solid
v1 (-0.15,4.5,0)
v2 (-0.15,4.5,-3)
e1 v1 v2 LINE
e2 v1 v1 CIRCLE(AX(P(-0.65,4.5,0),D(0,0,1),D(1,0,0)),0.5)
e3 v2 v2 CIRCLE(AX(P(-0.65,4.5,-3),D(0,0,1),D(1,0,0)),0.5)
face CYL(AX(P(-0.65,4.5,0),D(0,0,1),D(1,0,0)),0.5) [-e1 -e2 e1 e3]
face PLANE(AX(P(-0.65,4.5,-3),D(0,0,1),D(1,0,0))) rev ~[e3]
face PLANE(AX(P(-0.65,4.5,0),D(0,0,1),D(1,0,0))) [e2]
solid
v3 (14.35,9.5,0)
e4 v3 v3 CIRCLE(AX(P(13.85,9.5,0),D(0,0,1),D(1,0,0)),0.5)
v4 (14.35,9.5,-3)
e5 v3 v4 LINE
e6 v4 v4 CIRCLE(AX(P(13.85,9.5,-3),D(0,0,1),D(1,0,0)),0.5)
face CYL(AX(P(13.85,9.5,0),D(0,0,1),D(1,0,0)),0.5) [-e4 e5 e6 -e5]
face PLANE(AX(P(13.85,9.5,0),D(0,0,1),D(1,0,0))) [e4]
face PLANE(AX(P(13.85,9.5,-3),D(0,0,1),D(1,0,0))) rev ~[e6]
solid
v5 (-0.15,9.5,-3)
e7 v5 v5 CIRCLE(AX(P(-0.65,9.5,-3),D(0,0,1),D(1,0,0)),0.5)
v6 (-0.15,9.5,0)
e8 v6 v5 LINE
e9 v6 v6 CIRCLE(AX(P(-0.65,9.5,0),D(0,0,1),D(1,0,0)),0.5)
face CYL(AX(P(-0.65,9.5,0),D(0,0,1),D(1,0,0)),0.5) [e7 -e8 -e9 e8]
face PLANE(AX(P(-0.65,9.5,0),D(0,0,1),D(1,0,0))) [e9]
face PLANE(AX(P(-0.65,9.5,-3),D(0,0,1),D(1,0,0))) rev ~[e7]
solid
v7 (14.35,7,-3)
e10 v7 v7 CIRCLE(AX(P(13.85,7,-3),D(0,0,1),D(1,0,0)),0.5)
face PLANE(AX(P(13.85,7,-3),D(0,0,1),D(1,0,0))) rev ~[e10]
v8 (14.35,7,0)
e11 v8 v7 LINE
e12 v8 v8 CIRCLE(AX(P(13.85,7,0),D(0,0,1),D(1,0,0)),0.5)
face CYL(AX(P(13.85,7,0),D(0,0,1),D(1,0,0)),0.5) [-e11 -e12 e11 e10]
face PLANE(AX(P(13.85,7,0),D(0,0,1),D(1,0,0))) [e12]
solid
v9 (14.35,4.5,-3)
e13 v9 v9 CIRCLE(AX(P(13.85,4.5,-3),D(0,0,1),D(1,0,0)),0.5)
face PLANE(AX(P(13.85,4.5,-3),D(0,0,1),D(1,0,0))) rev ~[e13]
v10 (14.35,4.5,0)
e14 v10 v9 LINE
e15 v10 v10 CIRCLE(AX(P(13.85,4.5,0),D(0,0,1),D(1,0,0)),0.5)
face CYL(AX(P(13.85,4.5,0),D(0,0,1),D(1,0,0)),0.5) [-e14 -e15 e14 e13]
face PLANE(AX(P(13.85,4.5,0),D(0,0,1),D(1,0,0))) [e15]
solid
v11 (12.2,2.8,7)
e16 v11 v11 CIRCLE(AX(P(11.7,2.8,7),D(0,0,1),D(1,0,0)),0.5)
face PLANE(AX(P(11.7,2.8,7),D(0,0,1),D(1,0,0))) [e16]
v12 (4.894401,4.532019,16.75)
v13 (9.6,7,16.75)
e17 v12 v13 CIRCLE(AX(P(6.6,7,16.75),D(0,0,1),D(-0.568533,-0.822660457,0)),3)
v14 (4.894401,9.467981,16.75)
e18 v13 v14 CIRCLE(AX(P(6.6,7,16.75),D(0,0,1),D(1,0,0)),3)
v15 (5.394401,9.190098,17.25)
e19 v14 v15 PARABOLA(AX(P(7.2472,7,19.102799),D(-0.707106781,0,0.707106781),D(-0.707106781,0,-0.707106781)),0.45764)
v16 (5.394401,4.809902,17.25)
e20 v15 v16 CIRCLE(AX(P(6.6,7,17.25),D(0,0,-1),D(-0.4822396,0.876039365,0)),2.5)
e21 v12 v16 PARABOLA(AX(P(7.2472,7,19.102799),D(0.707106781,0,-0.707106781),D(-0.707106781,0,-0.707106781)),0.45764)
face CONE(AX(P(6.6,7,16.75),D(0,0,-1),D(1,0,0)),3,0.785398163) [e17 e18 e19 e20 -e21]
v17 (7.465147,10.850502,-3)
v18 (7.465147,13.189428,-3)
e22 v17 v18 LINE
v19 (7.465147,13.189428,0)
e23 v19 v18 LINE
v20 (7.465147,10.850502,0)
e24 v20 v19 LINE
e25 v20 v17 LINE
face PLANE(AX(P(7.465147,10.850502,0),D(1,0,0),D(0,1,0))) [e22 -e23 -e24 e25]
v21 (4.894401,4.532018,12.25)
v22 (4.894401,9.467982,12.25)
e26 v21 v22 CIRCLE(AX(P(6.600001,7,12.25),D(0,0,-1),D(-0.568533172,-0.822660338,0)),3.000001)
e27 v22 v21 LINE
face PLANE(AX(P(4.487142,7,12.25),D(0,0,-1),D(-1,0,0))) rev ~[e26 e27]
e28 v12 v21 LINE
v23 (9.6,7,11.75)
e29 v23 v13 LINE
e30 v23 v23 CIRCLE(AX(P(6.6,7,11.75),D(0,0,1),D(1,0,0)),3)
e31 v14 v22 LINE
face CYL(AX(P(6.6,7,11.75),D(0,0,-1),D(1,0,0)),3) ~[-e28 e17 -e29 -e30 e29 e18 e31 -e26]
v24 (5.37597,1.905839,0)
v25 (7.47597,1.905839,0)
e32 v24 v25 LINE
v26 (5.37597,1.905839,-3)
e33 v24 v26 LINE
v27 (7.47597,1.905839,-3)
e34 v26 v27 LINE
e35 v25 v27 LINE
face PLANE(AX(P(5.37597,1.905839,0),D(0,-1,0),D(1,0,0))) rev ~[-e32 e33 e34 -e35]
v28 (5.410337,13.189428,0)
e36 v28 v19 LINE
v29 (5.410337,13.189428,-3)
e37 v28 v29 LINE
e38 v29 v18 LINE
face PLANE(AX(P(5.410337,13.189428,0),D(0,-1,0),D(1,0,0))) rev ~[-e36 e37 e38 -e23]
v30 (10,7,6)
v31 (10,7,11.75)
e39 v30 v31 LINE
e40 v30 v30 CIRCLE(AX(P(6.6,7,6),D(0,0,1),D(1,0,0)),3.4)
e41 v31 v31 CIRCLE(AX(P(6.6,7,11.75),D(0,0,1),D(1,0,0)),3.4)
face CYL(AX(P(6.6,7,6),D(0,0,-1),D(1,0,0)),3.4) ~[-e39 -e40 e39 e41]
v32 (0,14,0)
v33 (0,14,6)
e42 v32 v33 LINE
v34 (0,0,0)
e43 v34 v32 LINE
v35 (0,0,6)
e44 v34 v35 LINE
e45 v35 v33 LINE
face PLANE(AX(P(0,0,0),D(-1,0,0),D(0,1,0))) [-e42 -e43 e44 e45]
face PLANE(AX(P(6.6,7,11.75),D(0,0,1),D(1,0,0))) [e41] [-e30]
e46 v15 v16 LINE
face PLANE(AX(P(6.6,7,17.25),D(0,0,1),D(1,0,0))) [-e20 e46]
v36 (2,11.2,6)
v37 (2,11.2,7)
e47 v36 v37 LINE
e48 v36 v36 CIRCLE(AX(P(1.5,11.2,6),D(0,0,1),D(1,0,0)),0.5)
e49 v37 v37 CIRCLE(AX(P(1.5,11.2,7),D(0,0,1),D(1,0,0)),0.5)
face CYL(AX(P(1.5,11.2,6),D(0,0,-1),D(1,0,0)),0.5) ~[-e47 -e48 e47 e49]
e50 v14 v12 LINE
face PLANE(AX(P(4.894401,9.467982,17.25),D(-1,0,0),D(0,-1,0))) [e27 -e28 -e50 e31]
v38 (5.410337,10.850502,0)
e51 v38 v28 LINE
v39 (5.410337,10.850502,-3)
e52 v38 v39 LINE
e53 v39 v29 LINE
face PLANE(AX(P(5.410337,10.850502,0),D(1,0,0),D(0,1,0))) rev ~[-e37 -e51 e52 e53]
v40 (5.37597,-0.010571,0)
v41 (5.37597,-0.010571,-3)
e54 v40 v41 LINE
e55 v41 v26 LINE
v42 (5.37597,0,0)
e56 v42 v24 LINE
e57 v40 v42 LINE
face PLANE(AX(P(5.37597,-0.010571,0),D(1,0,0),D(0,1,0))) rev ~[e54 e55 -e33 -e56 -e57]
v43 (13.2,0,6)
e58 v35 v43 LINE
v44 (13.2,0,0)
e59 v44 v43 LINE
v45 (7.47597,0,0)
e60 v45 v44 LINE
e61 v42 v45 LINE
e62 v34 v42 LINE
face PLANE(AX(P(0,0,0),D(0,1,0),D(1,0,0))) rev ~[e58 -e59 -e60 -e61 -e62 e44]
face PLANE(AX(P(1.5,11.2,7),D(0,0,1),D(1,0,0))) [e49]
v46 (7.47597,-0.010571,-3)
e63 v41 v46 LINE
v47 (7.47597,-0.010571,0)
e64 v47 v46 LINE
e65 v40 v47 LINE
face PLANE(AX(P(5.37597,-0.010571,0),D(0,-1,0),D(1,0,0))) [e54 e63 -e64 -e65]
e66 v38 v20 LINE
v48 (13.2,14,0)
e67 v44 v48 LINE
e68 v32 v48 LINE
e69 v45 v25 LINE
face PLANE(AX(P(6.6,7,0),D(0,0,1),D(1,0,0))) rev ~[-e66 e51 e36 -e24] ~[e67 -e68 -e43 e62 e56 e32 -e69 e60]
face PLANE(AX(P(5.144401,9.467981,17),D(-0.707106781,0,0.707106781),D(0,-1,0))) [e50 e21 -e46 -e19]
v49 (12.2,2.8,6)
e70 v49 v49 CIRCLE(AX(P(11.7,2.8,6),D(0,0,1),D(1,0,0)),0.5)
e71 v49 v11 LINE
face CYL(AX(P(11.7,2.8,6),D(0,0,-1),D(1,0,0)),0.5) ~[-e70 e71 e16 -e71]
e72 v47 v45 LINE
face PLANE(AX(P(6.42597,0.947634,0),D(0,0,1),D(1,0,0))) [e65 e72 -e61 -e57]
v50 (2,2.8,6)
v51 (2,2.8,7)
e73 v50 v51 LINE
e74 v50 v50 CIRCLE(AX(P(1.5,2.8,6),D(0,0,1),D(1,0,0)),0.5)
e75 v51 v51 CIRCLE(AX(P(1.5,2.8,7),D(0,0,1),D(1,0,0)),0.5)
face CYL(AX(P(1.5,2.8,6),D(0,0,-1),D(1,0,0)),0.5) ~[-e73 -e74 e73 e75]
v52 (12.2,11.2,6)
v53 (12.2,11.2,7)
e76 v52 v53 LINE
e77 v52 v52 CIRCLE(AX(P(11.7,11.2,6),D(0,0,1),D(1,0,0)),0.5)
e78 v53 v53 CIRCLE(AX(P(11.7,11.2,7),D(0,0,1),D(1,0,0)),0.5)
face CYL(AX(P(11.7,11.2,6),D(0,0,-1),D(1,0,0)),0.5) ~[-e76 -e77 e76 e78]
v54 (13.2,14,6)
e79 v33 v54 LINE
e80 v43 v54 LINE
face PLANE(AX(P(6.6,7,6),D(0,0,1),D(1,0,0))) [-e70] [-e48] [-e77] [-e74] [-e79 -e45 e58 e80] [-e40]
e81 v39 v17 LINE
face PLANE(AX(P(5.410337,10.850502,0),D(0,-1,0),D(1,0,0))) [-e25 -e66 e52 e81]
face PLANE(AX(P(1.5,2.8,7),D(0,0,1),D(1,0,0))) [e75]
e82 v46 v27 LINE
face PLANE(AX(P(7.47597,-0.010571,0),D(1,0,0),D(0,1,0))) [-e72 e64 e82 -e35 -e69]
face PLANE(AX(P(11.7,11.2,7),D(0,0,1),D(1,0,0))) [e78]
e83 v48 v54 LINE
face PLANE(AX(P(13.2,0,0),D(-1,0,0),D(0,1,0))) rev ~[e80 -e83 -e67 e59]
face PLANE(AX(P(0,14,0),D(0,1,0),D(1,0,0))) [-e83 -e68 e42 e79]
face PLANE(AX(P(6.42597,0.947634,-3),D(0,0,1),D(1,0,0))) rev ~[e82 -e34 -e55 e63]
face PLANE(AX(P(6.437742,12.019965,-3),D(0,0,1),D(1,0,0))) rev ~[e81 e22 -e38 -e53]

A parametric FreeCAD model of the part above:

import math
import FreeCAD as App
import Part
import Sketcher
from FreeCAD import Vector
Q = App.Units.Quantity


def edges_at(feature, points):
    """Names of the edges that pass closest to the given points."""
    edges = feature.Shape.Edges
    near = lambda p: min(range(len(edges)), key=lambda i: edges[i].distToShape(Part.Vertex(*p))[0])
    return sorted({f"Edge{near(p) + 1}" for p in points})


def add_polygon(sketch, points):
    """Adds a closed chain of lines whose ends are joined by coincident constraints."""
    first, n = sketch.GeometryCount, len(points)
    for a, b in zip(points, points[1:] + points[:1]):
        sketch.addGeometry(Part.LineSegment(App.Vector(*a, 0), App.Vector(*b, 0)), False)
    for i in range(n):
        sketch.addConstraint(Sketcher.Constraint("Coincident", first + i, 2, first + (i + 1) % n, 1))

doc = App.newDocument("Part")
body = doc.addObject("PartDesign::Body", "Body")
body.AllowCompound = True

# Sketch on XY plane
sketch1 = doc.addObject("Sketcher::SketchObject", "Sketch")
body.addObject(sketch1)
sketch1.AttachmentSupport = (doc.XY_Plane, [""])
sketch1.MapMode = "FlatFace"
sketch1.addGeometry(Part.Circle(Vector(-0.7, 4.5, 0), Vector(0, 0, 1), 0.5), False)  # 0
sketch1.addGeometry(Part.Circle(Vector(13.8, 4.5, 0), Vector(0, 0, 1), 0.5), False)  # 1
sketch1.addGeometry(Part.Circle(Vector(13.8, 9.5, 0), Vector(0, 0, 1), 0.5), False)  # 2
sketch1.addGeometry(Part.Circle(Vector(-0.7, 9.5, 0), Vector(0, 0, 1), 0.5), False)  # 3
sketch1.addGeometry(Part.Circle(Vector(13.8, 7, 0), Vector(0, 0, 1), 0.5), False)  # 4
add_polygon(sketch1, [(5.4, 1.9), (5.4, 0), (7.5, 0), (7.5, 1.9)])  # lines 5-8
add_polygon(sketch1, [(5.4, 13.2), (5.4, 10.9), (7.5, 10.9), (7.5, 13.2)])  # lines 9-12
sketch1.addConstraint(Sketcher.Constraint("Vertical", 5))
sketch1.addConstraint(Sketcher.Constraint("Horizontal", 6))
sketch1.addConstraint(Sketcher.Constraint("Vertical", 7))
sketch1.addConstraint(Sketcher.Constraint("Horizontal", 8))
sketch1.addConstraint(Sketcher.Constraint("Vertical", 9))
sketch1.addConstraint(Sketcher.Constraint("Horizontal", 10))
sketch1.addConstraint(Sketcher.Constraint("Vertical", 11))
sketch1.addConstraint(Sketcher.Constraint("Horizontal", 12))
sketch1.addConstraint(Sketcher.Constraint("Equal", 0, 1))
sketch1.addConstraint(Sketcher.Constraint("Equal", 1, 2))
sketch1.addConstraint(Sketcher.Constraint("Equal", 2, 3))
sketch1.addConstraint(Sketcher.Constraint("Equal", 3, 4))
sketch1.addConstraint(Sketcher.Constraint("Horizontal", 0, 3, 1, 3))
sketch1.addConstraint(Sketcher.Constraint("Horizontal", 2, 3, 3, 3))
sketch1.addConstraint(Sketcher.Constraint("Vertical", 1, 3, 2, 3))
sketch1.addConstraint(Sketcher.Constraint("Vertical", 0, 3, 3, 3))
sketch1.addConstraint(Sketcher.Constraint("Vertical", 2, 3, 4, 3))
sketch1.addConstraint(Sketcher.Constraint("Diameter", 0, Q("1 mm")))
sketch1.addConstraint(Sketcher.Constraint("DistanceX", 6, 1, 6, 2, Q("2.1 mm")))
sketch1.addConstraint(Sketcher.Constraint("DistanceY", -1, 1, 4, 3, Q("7 mm")))
sketch1.addConstraint(Sketcher.Constraint("DistanceY", 1, 3, 2, 3, Q("5 mm")))
sketch1.addConstraint(Sketcher.Constraint("DistanceY", -1, 1, 0, 3, Q("4.5 mm")))
sketch1.addConstraint(Sketcher.Constraint("DistanceX", 0, 3, 1, 3, Q("14.5 mm")))
sketch1.addConstraint(Sketcher.Constraint("DistanceX", 0, 3, -1, 1, Q("0.65 mm")))
sketch1.addConstraint(Sketcher.Constraint("DistanceX", 10, 1, 10, 2, Q("2.05481 mm")))
sketch1.addConstraint(Sketcher.Constraint("DistanceY", 5, 2, 5, 1, Q("1.916411 mm")))
sketch1.addConstraint(Sketcher.Constraint("DistanceY", 9, 2, 9, 1, Q("2.338926 mm")))
sketch1.addConstraint(Sketcher.Constraint("DistanceX", -1, 1, 5, 2, Q("5.37597 mm")))
sketch1.addConstraint(Sketcher.Constraint("DistanceY", 5, 2, -1, 1, Q("0.010571 mm")))
sketch1.addConstraint(Sketcher.Constraint("DistanceX", -1, 1, 9, 2, Q("5.410337 mm")))
sketch1.addConstraint(Sketcher.Constraint("DistanceY", -1, 1, 9, 2, Q("10.850502 mm")))
pad1 = doc.addObject("PartDesign::Pad", "Pad")
body.addObject(pad1)
pad1.Profile = sketch1
pad1.Length = 3
pad1.Reversed = True
body2 = doc.addObject("PartDesign::Body", "Body001")
body2.AllowCompound = True

# Sketch on XY plane
sketch2 = doc.addObject("Sketcher::SketchObject", "Sketch001")
body2.addObject(sketch2)
sketch2.AttachmentSupport = (doc.getObject("XY_Plane001"), [""])
sketch2.MapMode = "FlatFace"
add_polygon(sketch2, [(0, 14), (0, 0), (13, 0), (13, 14)])  # lines 0-3
sketch2.addConstraint(Sketcher.Constraint("Vertical", 0))
sketch2.addConstraint(Sketcher.Constraint("Horizontal", 1))
sketch2.addConstraint(Sketcher.Constraint("Vertical", 2))
sketch2.addConstraint(Sketcher.Constraint("Horizontal", 3))
sketch2.addConstraint(Sketcher.Constraint("Coincident", 0, 2, -1, 1))
sketch2.addConstraint(Sketcher.Constraint("DistanceY", 0, 2, 0, 1, Q("14 mm")))
sketch2.addConstraint(Sketcher.Constraint("DistanceX", 1, 1, 1, 2, Q("13.2 mm")))
pad2 = doc.addObject("PartDesign::Pad", "Pad001")
body2.addObject(pad2)
pad2.Profile = sketch2
pad2.Length = 6

# Sketch on XY plane
sketch3 = doc.addObject("Sketcher::SketchObject", "Sketch002")
body2.addObject(sketch3)
sketch3.AttachmentSupport = (doc.getObject("XY_Plane001"), [""])
sketch3.MapMode = "FlatFace"
sketch3.AttachmentOffset = App.Placement(Vector(0, 0, 6), App.Rotation())
sketch3.addGeometry(Part.Circle(Vector(6.6, 7, 0), Vector(0, 0, 1), 3.4), False)
sketch3.addConstraint(Sketcher.Constraint("Diameter", 0, Q("6.8 mm")))
sketch3.addConstraint(Sketcher.Constraint("DistanceY", -1, 1, 0, 3, Q("7 mm")))
sketch3.addConstraint(Sketcher.Constraint("DistanceX", -1, 1, 0, 3, Q("6.6 mm")))
pad3 = doc.addObject("PartDesign::Pad", "Pad002")
body2.addObject(pad3)
pad3.Profile = sketch3
pad3.Length = 5.75

# Sketch on XY plane
sketch4 = doc.addObject("Sketcher::SketchObject", "Sketch003")
body2.addObject(sketch4)
sketch4.AttachmentSupport = (doc.getObject("XY_Plane001"), [""])
sketch4.MapMode = "FlatFace"
sketch4.AttachmentOffset = App.Placement(Vector(0, 0, 11.75), App.Rotation())
sketch4.addGeometry(Part.Circle(Vector(6.6, 7, 0), Vector(0, 0, 1), 3), False)
sketch4.addConstraint(Sketcher.Constraint("Diameter", 0, Q("6 mm")))
sketch4.addConstraint(Sketcher.Constraint("DistanceY", -1, 1, 0, 3, Q("7 mm")))
sketch4.addConstraint(Sketcher.Constraint("DistanceX", -1, 1, 0, 3, Q("6.6 mm")))
pad4 = doc.addObject("PartDesign::Pad", "Pad003")
body2.addObject(pad4)
pad4.Profile = sketch4
pad4.Length = 5.5

# Sketch on XY plane
sketch5 = doc.addObject("Sketcher::SketchObject", "Sketch004")
body2.addObject(sketch5)
sketch5.AttachmentSupport = (doc.getObject("XY_Plane001"), [""])
sketch5.MapMode = "FlatFace"
sketch5.AttachmentOffset = App.Placement(Vector(0, 0, 17.25), App.Rotation())
sketch5.addGeometry(Part.LineSegment(Vector(4.9, 4.5, 0), Vector(4.9, 9.5, 0)), False)
sketch5.addGeometry(Part.ArcOfCircle(Part.Circle(Vector(6.6, 7, 0), Vector(0, 0, 1), 3), math.radians(125), math.radians(235)), False)
sketch5.addConstraint(Sketcher.Constraint("Coincident", 0, 1, 1, 2))
sketch5.addConstraint(Sketcher.Constraint("Coincident", 1, 1, 0, 2))
sketch5.addConstraint(Sketcher.Constraint("Vertical", 0))
sketch5.addConstraint(Sketcher.Constraint("Radius", 1, Q("3.000001 mm")))
sketch5.addConstraint(Sketcher.Constraint("DistanceY", -1, 1, 1, 3, Q("7 mm")))
sketch5.addConstraint(Sketcher.Constraint("DistanceX", -1, 1, 1, 3, Q("6.600001 mm")))
sketch5.addConstraint(Sketcher.Constraint("DistanceX", -1, 1, 0, 1, Q("4.894401 mm")))
pocket1 = doc.addObject("PartDesign::Pocket", "Pocket")
body2.addObject(pocket1)
pocket1.Profile = sketch5
pocket1.Length = 5
doc.recompute()

chamfer = doc.addObject("PartDesign::Chamfer", "Chamfer")
body2.addObject(chamfer)
chamfer.Base = (pocket1, edges_at(pocket1, [(7.993, 9.657, 17.25), (7.993, 4.343, 17.25), (4.894, 7, 17.25)]))
chamfer.Size = 0.5

# Sketch on XY plane
sketch6 = doc.addObject("Sketcher::SketchObject", "Sketch005")
body2.addObject(sketch6)
sketch6.AttachmentSupport = (doc.getObject("XY_Plane001"), [""])
sketch6.MapMode = "FlatFace"
sketch6.AttachmentOffset = App.Placement(Vector(0, 0, 6), App.Rotation())
sketch6.addGeometry(Part.Circle(Vector(1.5, 11.2, 0), Vector(0, 0, 1), 0.5), False)
sketch6.addGeometry(Part.Circle(Vector(1.5, 2.8, 0), Vector(0, 0, 1), 0.5), False)
sketch6.addGeometry(Part.Circle(Vector(11.7, 11.2, 0), Vector(0, 0, 1), 0.5), False)
sketch6.addGeometry(Part.Circle(Vector(11.7, 2.8, 0), Vector(0, 0, 1), 0.5), False)
sketch6.addConstraint(Sketcher.Constraint("Equal", 0, 1))
sketch6.addConstraint(Sketcher.Constraint("Equal", 1, 2))
sketch6.addConstraint(Sketcher.Constraint("Equal", 2, 3))
sketch6.addConstraint(Sketcher.Constraint("Horizontal", 0, 3, 2, 3))
sketch6.addConstraint(Sketcher.Constraint("Horizontal", 1, 3, 3, 3))
sketch6.addConstraint(Sketcher.Constraint("Vertical", 0, 3, 1, 3))
sketch6.addConstraint(Sketcher.Constraint("Vertical", 2, 3, 3, 3))
sketch6.addConstraint(Sketcher.Constraint("Diameter", 0, Q("1 mm")))
sketch6.addConstraint(Sketcher.Constraint("DistanceX", -1, 1, 0, 3, Q("1.5 mm")))
sketch6.addConstraint(Sketcher.Constraint("DistanceY", -1, 1, 0, 3, Q("11.2 mm")))
sketch6.addConstraint(Sketcher.Constraint("DistanceY", -1, 1, 1, 3, Q("2.8 mm")))
sketch6.addConstraint(Sketcher.Constraint("DistanceX", -1, 1, 2, 3, Q("11.7 mm")))
pad5 = doc.addObject("PartDesign::Pad", "Pad004")
body2.addObject(pad5)
pad5.Profile = sketch6
pad5.Length = 1
doc.recompute()

boolean = doc.addObject("PartDesign::Boolean", "Boolean")
body2.addObject(boolean)
boolean.Type = "Fuse"
boolean.addObjects([body])

doc.recompute()
